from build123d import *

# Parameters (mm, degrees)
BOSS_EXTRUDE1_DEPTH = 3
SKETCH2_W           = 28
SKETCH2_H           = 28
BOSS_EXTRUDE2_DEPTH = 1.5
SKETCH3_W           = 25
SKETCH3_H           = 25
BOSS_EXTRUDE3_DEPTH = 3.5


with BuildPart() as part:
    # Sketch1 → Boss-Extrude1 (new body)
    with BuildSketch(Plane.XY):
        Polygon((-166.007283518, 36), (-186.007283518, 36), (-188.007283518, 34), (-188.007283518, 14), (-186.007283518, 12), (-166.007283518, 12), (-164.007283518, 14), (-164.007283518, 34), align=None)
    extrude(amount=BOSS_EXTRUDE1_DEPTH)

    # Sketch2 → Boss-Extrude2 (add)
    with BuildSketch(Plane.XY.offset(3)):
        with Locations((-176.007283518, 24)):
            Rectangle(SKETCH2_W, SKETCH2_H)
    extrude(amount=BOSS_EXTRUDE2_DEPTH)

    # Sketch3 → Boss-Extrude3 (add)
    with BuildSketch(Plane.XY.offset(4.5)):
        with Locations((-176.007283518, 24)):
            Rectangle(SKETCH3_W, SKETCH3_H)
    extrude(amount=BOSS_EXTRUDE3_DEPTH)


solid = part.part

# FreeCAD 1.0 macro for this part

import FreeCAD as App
import Part
import Sketcher

doc = App.newDocument("Part")
body = doc.addObject("PartDesign::Body", "Body")

# Sketch on XY plane
sketch1 = body.newObject("Sketcher::SketchObject", "Sketch")
sketch1.AttachmentSupport = (doc.getObject("XY_Plane"), [""])
sketch1.MapMode = "FlatFace"
sketch1.addGeometry(Part.LineSegment(App.Vector(-166, 36, 0), App.Vector(-186, 36, 0)), False)
sketch1.addGeometry(Part.LineSegment(App.Vector(-186, 36, 0), App.Vector(-188, 34, 0)), False)
sketch1.addGeometry(Part.LineSegment(App.Vector(-188, 34, 0), App.Vector(-188, 14, 0)), False)
sketch1.addGeometry(Part.LineSegment(App.Vector(-188, 14, 0), App.Vector(-186, 12, 0)), False)
sketch1.addGeometry(Part.LineSegment(App.Vector(-186, 12, 0), App.Vector(-166, 12, 0)), False)
sketch1.addGeometry(Part.LineSegment(App.Vector(-166, 12, 0), App.Vector(-164, 14, 0)), False)
sketch1.addGeometry(Part.LineSegment(App.Vector(-164, 14, 0), App.Vector(-164, 34, 0)), False)
sketch1.addGeometry(Part.LineSegment(App.Vector(-164, 34, 0), App.Vector(-166, 36, 0)), False)
sketch1.addConstraint(Sketcher.Constraint("Coincident", 0, 2, 1, 1))
sketch1.addConstraint(Sketcher.Constraint("Coincident", 1, 2, 2, 1))
sketch1.addConstraint(Sketcher.Constraint("Coincident", 2, 2, 3, 1))
sketch1.addConstraint(Sketcher.Constraint("Coincident", 3, 2, 4, 1))
sketch1.addConstraint(Sketcher.Constraint("Coincident", 4, 2, 5, 1))
sketch1.addConstraint(Sketcher.Constraint("Coincident", 5, 2, 6, 1))
sketch1.addConstraint(Sketcher.Constraint("Coincident", 6, 2, 7, 1))
sketch1.addConstraint(Sketcher.Constraint("Coincident", 7, 2, 0, 1))
sketch1.addConstraint(Sketcher.Constraint("Horizontal", 0))
sketch1.addConstraint(Sketcher.Constraint("Vertical", 2))
sketch1.addConstraint(Sketcher.Constraint("Horizontal", 4))
sketch1.addConstraint(Sketcher.Constraint("Vertical", 6))
sketch1.addConstraint(Sketcher.Constraint("Perpendicular", 1, 3))
sketch1.addConstraint(Sketcher.Constraint("Perpendicular", 3, 5))
sketch1.addConstraint(Sketcher.Constraint("Perpendicular", 5, 7))
sketch1.addConstraint(Sketcher.Constraint("Horizontal", 2, 2, 5, 2))
sketch1.addConstraint(Sketcher.Constraint("Horizontal", 1, 2, 6, 2))
sketch1.addConstraint(Sketcher.Constraint("Vertical", 0, 2, 3, 2))
sketch1.addConstraint(Sketcher.Constraint("Vertical", 4, 2, 7, 2))
sketch1.addConstraint(Sketcher.Constraint("Equal", 4, 2))
sketch1.addConstraint(Sketcher.Constraint("DistanceX", 0, 2, 0, 1, 20.0))
sketch1.addConstraint(Sketcher.Constraint("DistanceY", -1, 1, 0, 2, 36.0))
sketch1.addConstraint(Sketcher.Constraint("DistanceY", -1, 1, 1, 2, 34.0))
sketch1.addConstraint(Sketcher.Constraint("DistanceX", 0, 2, -1, 1, 186.007284))
pad1 = body.newObject("PartDesign::Pad", "Pad")
pad1.Profile = sketch1
pad1.Length = 3

# Sketch on XY plane
sketch2 = body.newObject("Sketcher::SketchObject", "Sketch001")
sketch2.AttachmentSupport = (doc.getObject("XY_Plane"), [""])
sketch2.MapMode = "FlatFace"
sketch2.AttachmentOffset = App.Placement(App.Vector(0, 0, 3), App.Rotation())
sketch2.addGeometry(Part.LineSegment(App.Vector(-190, 38, 0), App.Vector(-190, 10, 0)), False)
sketch2.addGeometry(Part.LineSegment(App.Vector(-190, 10, 0), App.Vector(-162, 10, 0)), False)
sketch2.addGeometry(Part.LineSegment(App.Vector(-162, 10, 0), App.Vector(-162, 38, 0)), False)
sketch2.addGeometry(Part.LineSegment(App.Vector(-162, 38, 0), App.Vector(-190, 38, 0)), False)
sketch2.addConstraint(Sketcher.Constraint("Coincident", 0, 2, 1, 1))
sketch2.addConstraint(Sketcher.Constraint("Coincident", 1, 2, 2, 1))
sketch2.addConstraint(Sketcher.Constraint("Coincident", 2, 2, 3, 1))
sketch2.addConstraint(Sketcher.Constraint("Coincident", 3, 2, 0, 1))
sketch2.addConstraint(Sketcher.Constraint("Vertical", 0))
sketch2.addConstraint(Sketcher.Constraint("Horizontal", 1))
sketch2.addConstraint(Sketcher.Constraint("Vertical", 2))
sketch2.addConstraint(Sketcher.Constraint("Horizontal", 3))
sketch2.addConstraint(Sketcher.Constraint("Equal", 3, 0))
sketch2.addConstraint(Sketcher.Constraint("DistanceX", 1, 1, 1, 2, 28.0))
sketch2.addConstraint(Sketcher.Constraint("DistanceY", -1, 1, 0, 2, 10.0))
sketch2.addConstraint(Sketcher.Constraint("DistanceX", 0, 2, -1, 1, 190.007284))
pad2 = body.newObject("PartDesign::Pad", "Pad001")
pad2.Profile = sketch2
pad2.Length = 1.5

# Sketch on XY plane
sketch3 = body.newObject("Sketcher::SketchObject", "Sketch002")
sketch3.AttachmentSupport = (doc.getObject("XY_Plane"), [""])
sketch3.MapMode = "FlatFace"
sketch3.AttachmentOffset = App.Placement(App.Vector(0, 0, 4.5), App.Rotation())
sketch3.addGeometry(Part.LineSegment(App.Vector(-189, 36, 0), App.Vector(-189, 12, 0)), False)
sketch3.addGeometry(Part.LineSegment(App.Vector(-189, 12, 0), App.Vector(-164, 12, 0)), False)
sketch3.addGeometry(Part.LineSegment(App.Vector(-164, 12, 0), App.Vector(-164, 36, 0)), False)
sketch3.addGeometry(Part.LineSegment(App.Vector(-164, 36, 0), App.Vector(-189, 36, 0)), False)
sketch3.addConstraint(Sketcher.Constraint("Coincident", 0, 2, 1, 1))
sketch3.addConstraint(Sketcher.Constraint("Coincident", 1, 2, 2, 1))
sketch3.addConstraint(Sketcher.Constraint("Coincident", 2, 2, 3, 1))
sketch3.addConstraint(Sketcher.Constraint("Coincident", 3, 2, 0, 1))
sketch3.addConstraint(Sketcher.Constraint("Vertical", 0))
sketch3.addConstraint(Sketcher.Constraint("Horizontal", 1))
sketch3.addConstraint(Sketcher.Constraint("Vertical", 2))
sketch3.addConstraint(Sketcher.Constraint("Horizontal", 3))
sketch3.addConstraint(Sketcher.Constraint("Equal", 3, 0))
sketch3.addConstraint(Sketcher.Constraint("DistanceX", 1, 1, 1, 2, 25.0))
sketch3.addConstraint(Sketcher.Constraint("DistanceY", -1, 1, 0, 2, 11.5))
sketch3.addConstraint(Sketcher.Constraint("DistanceX", 0, 2, -1, 1, 188.507284))
pad3 = body.newObject("PartDesign::Pad", "Pad002")
pad3.Profile = sketch3
pad3.Length = 3.5

doc.recompute()
